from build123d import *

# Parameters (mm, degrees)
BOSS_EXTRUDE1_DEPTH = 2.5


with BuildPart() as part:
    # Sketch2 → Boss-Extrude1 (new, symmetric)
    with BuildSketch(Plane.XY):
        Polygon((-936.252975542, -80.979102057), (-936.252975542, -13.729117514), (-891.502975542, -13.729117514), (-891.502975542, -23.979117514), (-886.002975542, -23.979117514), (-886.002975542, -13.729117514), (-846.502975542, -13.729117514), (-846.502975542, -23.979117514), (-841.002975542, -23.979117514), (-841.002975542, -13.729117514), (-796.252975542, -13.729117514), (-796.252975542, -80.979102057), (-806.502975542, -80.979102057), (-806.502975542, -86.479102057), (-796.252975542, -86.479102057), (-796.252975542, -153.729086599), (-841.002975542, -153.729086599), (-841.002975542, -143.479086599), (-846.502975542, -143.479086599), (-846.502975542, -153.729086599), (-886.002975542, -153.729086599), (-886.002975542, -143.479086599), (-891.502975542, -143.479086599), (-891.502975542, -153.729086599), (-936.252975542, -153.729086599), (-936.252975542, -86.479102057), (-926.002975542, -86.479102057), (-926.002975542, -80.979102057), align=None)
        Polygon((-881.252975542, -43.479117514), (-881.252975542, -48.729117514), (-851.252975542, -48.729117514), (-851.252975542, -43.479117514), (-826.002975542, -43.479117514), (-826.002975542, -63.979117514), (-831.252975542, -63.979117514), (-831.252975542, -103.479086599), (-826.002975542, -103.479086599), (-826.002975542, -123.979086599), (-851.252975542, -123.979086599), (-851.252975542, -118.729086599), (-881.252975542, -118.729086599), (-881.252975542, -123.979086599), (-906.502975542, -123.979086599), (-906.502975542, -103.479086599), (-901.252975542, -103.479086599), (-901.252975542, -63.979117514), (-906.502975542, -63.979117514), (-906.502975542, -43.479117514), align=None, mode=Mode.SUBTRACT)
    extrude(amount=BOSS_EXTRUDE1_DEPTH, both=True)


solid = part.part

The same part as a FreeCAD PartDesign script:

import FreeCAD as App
import Part
import Sketcher
from FreeCAD import Vector


def add_polygon(sketch, points):
    """Adds a closed chain of lines whose ends are joined by coincident constraints."""
    first, n = sketch.GeometryCount, len(points)
    for a, b in zip(points, points[1:] + points[:1]):
        sketch.addGeometry(Part.LineSegment(App.Vector(*a, 0), App.Vector(*b, 0)), False)
    for i in range(n):
        sketch.addConstraint(Sketcher.Constraint("Coincident", first + i, 2, first + (i + 1) % n, 1))

doc = App.newDocument("Part")
body = doc.addObject("PartDesign::Body", "Body")

sketch1 = body.newObject("Sketcher::SketchObject", "Sketch")
sketch1.AttachmentSupport = (doc.getObject("XY_Plane"), [""])
sketch1.MapMode = "FlatFace"
add_polygon(sketch1, [(-936, -14), (-936, -81), (-926, -81), (-926, -86), (-936, -86), (-936, -154), (-892, -154), (-892, -143), (-886, -143), (-886, -154), (-847, -154), (-847, -143), (-841, -143), (-841, -154), (-796, -154), (-796, -86), (-807, -86), (-807, -81), (-796, -81), (-796, -14), (-841, -14), (-841, -24), (-847, -24), (-847, -14), (-886, -14), (-886, -24), (-892, -24), (-892, -14)])
add_polygon(sketch1, [(-881, -43), (-881, -49), (-851, -49), (-851, -43), (-826, -43), (-826, -64), (-831, -64), (-831, -103), (-826, -103), (-826, -124), (-851, -124), (-851, -119), (-881, -119), (-881, -124), (-907, -124), (-907, -103), (-901, -103), (-901, -64), (-907, -64), (-907, -43)])
sketch1.addConstraint([
    Sketcher.Constraint("Vertical", 0),
    Sketcher.Constraint("Horizontal", 1),
    Sketcher.Constraint("Vertical", 2),
    Sketcher.Constraint("Horizontal", 3),
    Sketcher.Constraint("Vertical", 4),
    Sketcher.Constraint("Horizontal", 5),
    Sketcher.Constraint("Vertical", 6),
    Sketcher.Constraint("Horizontal", 7),
    Sketcher.Constraint("Vertical", 8),
    Sketcher.Constraint("Horizontal", 9),
    Sketcher.Constraint("Vertical", 10),
    Sketcher.Constraint("Horizontal", 11),
    Sketcher.Constraint("Vertical", 12),
    Sketcher.Constraint("Horizontal", 13),
    Sketcher.Constraint("Vertical", 14),
    Sketcher.Constraint("Horizontal", 15),
    Sketcher.Constraint("Vertical", 16),
    Sketcher.Constraint("Horizontal", 17),
    Sketcher.Constraint("Vertical", 18),
    Sketcher.Constraint("Horizontal", 19),
    Sketcher.Constraint("Vertical", 20),
    Sketcher.Constraint("Horizontal", 21),
    Sketcher.Constraint("Vertical", 22),
    Sketcher.Constraint("Horizontal", 23),
    Sketcher.Constraint("Vertical", 24),
    Sketcher.Constraint("Horizontal", 25),
    Sketcher.Constraint("Vertical", 26),
    Sketcher.Constraint("Horizontal", 27),
    Sketcher.Constraint("Vertical", 28),
    Sketcher.Constraint("Horizontal", 29),
    Sketcher.Constraint("Vertical", 30),
    Sketcher.Constraint("Horizontal", 31),
    Sketcher.Constraint("Vertical", 32),
    Sketcher.Constraint("Horizontal", 33),
    Sketcher.Constraint("Vertical", 34),
    Sketcher.Constraint("Horizontal", 35),
    Sketcher.Constraint("Vertical", 36),
    Sketcher.Constraint("Horizontal", 37),
    Sketcher.Constraint("Vertical", 38),
    Sketcher.Constraint("Horizontal", 39),
    Sketcher.Constraint("Vertical", 40),
    Sketcher.Constraint("Horizontal", 41),
    Sketcher.Constraint("Vertical", 42),
    Sketcher.Constraint("Horizontal", 43),
    Sketcher.Constraint("Vertical", 44),
    Sketcher.Constraint("Horizontal", 45),
    Sketcher.Constraint("Vertical", 46),
    Sketcher.Constraint("Horizontal", 47),
    Sketcher.Constraint("Horizontal", 5, 2, 8, 2),
    Sketcher.Constraint("Horizontal", 7, 2, 10, 2),
    Sketcher.Constraint("Horizontal", 9, 2, 12, 2),
    Sketcher.Constraint("Horizontal", 3, 2, 14, 2),
    Sketcher.Constraint("Horizontal", 1, 2, 16, 2),
    Sketcher.Constraint("Horizontal", 19, 2, 22, 2),
    Sketcher.Constraint("Horizontal", 21, 2, 24, 2),
    Sketcher.Constraint("Horizontal", 23, 2, 26, 2),
    Sketcher.Constraint("Horizontal", 37, 2, 40, 2),
    Sketcher.Constraint("Horizontal", 35, 2, 42, 2),
    Sketcher.Constraint("Horizontal", 33, 2, 44, 2),
    Sketcher.Constraint("Horizontal", 31, 2, 46, 2),
    Sketcher.Constraint("Vertical", 0, 2, 3, 2),
    Sketcher.Constraint("Vertical", 14, 2, 17, 2),
    Sketcher.Constraint("Vertical", 12, 2, 19, 2),
    Sketcher.Constraint("Vertical", 10, 2, 21, 2),
    Sketcher.Constraint("Vertical", 8, 2, 23, 2),
    Sketcher.Constraint("Vertical", 6, 2, 25, 2),
    Sketcher.Constraint("Vertical", 32, 2, 35, 2),
    Sketcher.Constraint("Vertical", 30, 2, 37, 2),
    Sketcher.Constraint("Vertical", 28, 2, 39, 2),
    Sketcher.Constraint("Vertical", 42, 2, 45, 2),
    Sketcher.Constraint("Equal", 7, 11),
    Sketcher.Constraint("Equal", 5, 13),
    Sketcher.Constraint("Equal", 3, 15),
    Sketcher.Constraint("Equal", 37, 41),
    Sketcher.Constraint("Equal", 35, 43),
    Sketcher.Constraint("Equal", 25, 2),
    Sketcher.Constraint("Equal", 0, 4),
    Sketcher.Constraint("Equal", 17, 6),
    Sketcher.Constraint("Equal", 12, 20),
    Sketcher.Constraint("Equal", 45, 28),
    Sketcher.Constraint("Equal", 32, 36),
    Sketcher.Constraint("Equal", 30, 38),
    Sketcher.Constraint("DistanceX", 29, 1, 29, 2, 30.0),
    Sketcher.Constraint("DistanceX", 7, 1, 7, 2, 5.5),
    Sketcher.Constraint("DistanceX", 9, 1, 9, 2, 39.5),
    Sketcher.Constraint("DistanceY", 32, 2, 32, 1, 20.5),
    Sketcher.Constraint("DistanceX", 2, 2, 7, 2, 40.0),
    Sketcher.Constraint("DistanceY", 28, 2, 23, 2, 35.0),
    Sketcher.Constraint("DistanceX", 20, 2, 31, 2, 15.0),
    Sketcher.Constraint("DistanceX", 29, 2, 33, 2, 20.0),
    Sketcher.Constraint("DistanceX", 34, 2, 14, 2, 35.0),
    Sketcher.Constraint("DistanceY", 8, 2, 39, 2, 35.0),
    Sketcher.Constraint("DistanceX", 41, 2, 6, 2, 15.0),
    Sketcher.Constraint("DistanceY", 34, 2, 34, 1, 39.499969),
    Sketcher.Constraint("DistanceX", 0, 2, -1, 1, 936.252976),
    Sketcher.Constraint("DistanceY", 0, 2, -1, 1, 80.979102),
])
pad1 = body.newObject("PartDesign::Pad", "Pad")
pad1.Profile = sketch1
pad1.Length = 5
pad1.Midplane = True

doc.recompute()
